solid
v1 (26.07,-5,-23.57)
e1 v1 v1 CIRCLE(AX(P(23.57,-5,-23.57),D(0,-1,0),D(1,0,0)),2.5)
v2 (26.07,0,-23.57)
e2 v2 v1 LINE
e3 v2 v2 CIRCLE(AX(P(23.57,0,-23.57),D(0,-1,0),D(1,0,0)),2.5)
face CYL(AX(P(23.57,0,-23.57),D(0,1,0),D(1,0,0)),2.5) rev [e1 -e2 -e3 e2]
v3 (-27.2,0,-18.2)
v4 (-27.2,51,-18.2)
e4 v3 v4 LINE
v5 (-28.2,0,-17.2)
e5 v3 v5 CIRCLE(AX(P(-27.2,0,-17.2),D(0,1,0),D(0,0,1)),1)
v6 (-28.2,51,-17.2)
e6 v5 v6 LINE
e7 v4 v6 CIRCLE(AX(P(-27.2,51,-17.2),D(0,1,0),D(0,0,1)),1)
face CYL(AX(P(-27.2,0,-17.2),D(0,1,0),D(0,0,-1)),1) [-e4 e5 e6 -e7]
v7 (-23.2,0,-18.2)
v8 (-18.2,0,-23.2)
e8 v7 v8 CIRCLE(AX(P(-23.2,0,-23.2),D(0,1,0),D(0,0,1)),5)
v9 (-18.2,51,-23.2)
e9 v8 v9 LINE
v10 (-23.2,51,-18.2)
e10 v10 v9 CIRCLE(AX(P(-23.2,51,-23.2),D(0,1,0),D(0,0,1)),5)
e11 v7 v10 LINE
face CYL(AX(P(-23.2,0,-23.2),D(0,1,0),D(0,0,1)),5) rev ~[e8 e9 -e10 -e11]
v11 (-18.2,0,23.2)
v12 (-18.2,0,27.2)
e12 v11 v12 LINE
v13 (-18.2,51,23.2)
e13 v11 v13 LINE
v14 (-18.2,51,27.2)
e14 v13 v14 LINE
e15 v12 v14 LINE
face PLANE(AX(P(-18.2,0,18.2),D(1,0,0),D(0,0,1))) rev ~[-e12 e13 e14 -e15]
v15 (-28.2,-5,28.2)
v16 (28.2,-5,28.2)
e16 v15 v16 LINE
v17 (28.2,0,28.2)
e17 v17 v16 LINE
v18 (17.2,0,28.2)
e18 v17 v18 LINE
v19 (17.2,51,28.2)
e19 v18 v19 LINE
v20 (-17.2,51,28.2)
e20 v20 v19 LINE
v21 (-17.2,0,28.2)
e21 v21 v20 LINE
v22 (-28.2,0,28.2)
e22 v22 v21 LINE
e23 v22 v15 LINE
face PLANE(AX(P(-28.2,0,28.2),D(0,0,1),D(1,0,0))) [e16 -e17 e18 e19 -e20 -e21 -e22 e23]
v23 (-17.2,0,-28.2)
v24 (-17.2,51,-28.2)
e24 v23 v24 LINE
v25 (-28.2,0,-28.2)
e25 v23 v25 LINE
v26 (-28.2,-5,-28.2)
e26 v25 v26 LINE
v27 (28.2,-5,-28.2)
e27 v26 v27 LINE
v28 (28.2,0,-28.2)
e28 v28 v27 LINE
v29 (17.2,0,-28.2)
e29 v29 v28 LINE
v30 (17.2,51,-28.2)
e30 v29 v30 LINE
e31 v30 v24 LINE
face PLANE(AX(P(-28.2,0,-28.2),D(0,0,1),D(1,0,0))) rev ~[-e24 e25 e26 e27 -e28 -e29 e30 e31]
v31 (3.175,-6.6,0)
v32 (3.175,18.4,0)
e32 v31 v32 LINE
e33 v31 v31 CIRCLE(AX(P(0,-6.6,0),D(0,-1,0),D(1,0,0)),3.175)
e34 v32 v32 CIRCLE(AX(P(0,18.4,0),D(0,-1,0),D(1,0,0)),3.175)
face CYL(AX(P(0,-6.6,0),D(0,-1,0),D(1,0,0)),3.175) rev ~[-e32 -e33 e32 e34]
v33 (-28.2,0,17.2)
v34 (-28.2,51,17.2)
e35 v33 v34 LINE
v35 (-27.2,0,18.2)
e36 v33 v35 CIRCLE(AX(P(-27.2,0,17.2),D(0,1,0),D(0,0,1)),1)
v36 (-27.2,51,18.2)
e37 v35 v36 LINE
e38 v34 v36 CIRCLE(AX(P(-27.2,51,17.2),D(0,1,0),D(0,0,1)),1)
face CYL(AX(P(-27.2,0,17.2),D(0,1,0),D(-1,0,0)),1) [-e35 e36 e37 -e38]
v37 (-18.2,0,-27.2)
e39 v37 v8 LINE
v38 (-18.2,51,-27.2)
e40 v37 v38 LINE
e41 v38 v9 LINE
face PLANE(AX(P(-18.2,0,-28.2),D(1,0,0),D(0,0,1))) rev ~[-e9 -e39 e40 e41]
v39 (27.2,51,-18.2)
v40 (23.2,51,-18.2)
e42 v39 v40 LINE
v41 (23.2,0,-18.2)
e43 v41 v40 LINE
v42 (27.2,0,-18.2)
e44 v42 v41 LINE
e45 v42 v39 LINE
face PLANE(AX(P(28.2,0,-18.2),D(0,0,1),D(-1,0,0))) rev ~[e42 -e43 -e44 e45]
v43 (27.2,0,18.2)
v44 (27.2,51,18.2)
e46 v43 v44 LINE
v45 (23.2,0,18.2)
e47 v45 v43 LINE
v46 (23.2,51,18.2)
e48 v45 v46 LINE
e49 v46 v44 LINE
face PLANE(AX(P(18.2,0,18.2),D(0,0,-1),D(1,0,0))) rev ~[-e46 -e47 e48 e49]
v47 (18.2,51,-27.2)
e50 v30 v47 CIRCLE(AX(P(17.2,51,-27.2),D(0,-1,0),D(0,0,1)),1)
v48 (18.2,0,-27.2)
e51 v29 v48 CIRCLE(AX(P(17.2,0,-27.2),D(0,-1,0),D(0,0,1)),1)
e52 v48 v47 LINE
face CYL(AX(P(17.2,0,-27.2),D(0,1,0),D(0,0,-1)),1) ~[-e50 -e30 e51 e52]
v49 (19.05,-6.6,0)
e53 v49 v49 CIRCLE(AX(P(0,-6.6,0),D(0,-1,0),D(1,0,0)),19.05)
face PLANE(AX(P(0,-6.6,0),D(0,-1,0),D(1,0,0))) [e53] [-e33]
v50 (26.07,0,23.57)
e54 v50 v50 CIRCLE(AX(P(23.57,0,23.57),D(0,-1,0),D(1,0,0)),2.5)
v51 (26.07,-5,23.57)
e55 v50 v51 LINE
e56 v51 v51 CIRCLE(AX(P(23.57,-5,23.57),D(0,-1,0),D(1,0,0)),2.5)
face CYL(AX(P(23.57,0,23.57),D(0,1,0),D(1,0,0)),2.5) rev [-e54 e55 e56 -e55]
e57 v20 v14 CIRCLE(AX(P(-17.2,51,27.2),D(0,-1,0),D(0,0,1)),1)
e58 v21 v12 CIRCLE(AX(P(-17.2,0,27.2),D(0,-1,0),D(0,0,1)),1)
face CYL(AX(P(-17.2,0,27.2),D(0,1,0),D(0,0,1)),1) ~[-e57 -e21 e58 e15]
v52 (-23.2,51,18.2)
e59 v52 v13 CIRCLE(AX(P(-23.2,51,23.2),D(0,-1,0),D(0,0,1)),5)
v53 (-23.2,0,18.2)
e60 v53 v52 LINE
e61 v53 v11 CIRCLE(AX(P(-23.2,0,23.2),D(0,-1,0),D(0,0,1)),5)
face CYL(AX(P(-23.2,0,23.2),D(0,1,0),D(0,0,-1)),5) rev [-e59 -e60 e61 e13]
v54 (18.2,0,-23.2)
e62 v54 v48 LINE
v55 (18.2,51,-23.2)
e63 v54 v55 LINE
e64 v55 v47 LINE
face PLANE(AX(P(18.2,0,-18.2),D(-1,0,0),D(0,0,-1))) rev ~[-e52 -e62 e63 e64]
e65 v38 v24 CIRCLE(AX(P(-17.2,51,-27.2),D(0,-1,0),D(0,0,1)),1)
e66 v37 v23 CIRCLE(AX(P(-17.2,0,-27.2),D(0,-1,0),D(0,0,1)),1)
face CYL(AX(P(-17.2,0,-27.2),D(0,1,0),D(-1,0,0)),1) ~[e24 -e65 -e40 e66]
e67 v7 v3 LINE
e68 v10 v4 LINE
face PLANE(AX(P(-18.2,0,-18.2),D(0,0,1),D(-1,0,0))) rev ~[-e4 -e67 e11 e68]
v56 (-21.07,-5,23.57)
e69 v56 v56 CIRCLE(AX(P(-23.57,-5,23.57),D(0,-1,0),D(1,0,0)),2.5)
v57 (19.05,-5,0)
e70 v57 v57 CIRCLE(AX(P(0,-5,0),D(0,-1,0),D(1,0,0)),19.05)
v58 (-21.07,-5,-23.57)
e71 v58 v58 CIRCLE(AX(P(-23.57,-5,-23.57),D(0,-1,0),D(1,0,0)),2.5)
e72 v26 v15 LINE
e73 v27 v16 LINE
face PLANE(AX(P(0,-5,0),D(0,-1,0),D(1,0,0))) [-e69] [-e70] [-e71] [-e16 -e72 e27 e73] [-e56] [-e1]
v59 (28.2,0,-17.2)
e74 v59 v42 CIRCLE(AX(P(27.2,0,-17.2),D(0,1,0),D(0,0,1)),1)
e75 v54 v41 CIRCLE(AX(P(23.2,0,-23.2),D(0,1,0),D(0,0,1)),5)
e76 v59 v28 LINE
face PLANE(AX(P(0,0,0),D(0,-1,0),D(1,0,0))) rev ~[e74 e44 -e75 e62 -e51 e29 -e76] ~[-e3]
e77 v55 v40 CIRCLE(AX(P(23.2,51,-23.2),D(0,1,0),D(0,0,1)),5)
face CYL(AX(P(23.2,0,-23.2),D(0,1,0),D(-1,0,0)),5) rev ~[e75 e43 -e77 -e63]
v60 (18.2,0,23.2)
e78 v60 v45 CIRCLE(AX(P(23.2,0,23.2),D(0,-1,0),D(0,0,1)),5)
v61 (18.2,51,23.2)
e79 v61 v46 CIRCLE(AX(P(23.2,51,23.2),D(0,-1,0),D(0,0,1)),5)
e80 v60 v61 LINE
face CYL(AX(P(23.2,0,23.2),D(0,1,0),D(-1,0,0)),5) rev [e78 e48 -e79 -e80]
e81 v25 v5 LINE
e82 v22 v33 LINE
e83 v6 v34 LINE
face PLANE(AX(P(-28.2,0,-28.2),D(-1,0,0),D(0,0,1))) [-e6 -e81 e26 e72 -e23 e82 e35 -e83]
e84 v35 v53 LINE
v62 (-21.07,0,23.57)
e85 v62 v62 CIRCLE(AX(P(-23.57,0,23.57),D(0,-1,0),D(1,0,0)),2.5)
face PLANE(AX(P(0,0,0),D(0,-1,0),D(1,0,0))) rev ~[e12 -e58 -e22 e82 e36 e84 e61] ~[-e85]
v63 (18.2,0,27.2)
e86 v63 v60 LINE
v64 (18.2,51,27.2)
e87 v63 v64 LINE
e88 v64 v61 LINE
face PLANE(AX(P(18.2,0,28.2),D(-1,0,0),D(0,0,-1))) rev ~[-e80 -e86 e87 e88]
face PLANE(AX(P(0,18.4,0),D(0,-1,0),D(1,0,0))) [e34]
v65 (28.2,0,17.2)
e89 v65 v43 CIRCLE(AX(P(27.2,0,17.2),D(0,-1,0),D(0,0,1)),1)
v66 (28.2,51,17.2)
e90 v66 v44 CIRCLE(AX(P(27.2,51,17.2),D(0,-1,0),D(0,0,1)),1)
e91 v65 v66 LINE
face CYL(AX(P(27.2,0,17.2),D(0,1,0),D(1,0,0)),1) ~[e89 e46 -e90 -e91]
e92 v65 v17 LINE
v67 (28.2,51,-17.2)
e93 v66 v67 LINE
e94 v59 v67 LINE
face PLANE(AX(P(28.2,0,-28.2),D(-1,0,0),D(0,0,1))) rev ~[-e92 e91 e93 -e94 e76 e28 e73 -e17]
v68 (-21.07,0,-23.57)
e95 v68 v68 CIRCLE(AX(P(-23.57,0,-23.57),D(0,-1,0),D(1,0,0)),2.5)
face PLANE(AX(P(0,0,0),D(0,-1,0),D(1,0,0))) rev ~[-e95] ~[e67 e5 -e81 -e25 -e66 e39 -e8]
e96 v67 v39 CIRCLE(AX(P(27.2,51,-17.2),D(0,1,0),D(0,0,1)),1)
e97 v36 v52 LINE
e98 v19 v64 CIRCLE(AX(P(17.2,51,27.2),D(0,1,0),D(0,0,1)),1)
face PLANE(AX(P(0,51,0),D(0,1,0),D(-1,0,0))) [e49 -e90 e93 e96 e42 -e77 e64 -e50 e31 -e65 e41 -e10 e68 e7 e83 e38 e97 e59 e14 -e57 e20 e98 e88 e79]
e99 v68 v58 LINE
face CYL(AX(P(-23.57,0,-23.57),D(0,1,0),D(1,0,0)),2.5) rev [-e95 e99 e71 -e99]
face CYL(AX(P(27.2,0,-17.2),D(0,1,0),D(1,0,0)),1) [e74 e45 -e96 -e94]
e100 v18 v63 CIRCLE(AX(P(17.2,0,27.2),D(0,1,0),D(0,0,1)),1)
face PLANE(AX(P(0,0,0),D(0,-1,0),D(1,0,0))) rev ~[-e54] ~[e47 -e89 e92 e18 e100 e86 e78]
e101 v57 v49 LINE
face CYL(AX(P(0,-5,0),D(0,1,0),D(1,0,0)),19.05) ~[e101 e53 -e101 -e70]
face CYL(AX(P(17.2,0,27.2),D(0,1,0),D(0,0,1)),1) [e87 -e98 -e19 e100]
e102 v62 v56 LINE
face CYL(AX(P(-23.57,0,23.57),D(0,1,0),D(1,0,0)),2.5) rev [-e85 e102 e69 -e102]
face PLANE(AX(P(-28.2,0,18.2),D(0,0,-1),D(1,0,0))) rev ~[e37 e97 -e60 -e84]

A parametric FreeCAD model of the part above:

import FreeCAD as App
import Part
import Sketcher
Q = App.Units.Quantity


def edges_at(feature, points):
    """Names of the edges that pass closest to the given points."""
    edges = feature.Shape.Edges
    near = lambda p: min(range(len(edges)), key=lambda i: edges[i].distToShape(Part.Vertex(*p))[0])
    return sorted({f"Edge{near(p) + 1}" for p in points})

doc = App.newDocument("Part")
body = doc.addObject("PartDesign::Body", "Body")

sketch1 = doc.addObject("Sketcher::SketchObject", "Sketch")
body.addObject(sketch1)
sketch1.AttachmentSupport = (doc.XZ_Plane, [""])
sketch1.MapMode = "FlatFace"
sketch1.addGeometry([
    Part.LineSegment(App.Vector(-28.2, 28.2, 0), App.Vector(-28.2, -28.2, 0)),
    Part.LineSegment(App.Vector(-28.2, -28.2, 0), App.Vector(28.2, -28.2, 0)),
    Part.LineSegment(App.Vector(28.2, -28.2, 0), App.Vector(28.2, 28.2, 0)),
    Part.LineSegment(App.Vector(28.2, 28.2, 0), App.Vector(-28.2, 28.2, 0)),
    Part.Circle(App.Vector(-23.57, -23.57, 0), App.Vector(0, 0, 1), 2.5),
    Part.Circle(App.Vector(23.57, -23.57, 0), App.Vector(0, 0, 1), 2.5),
    Part.Circle(App.Vector(-23.57, 23.57, 0), App.Vector(0, 0, 1), 2.5),
    Part.Circle(App.Vector(23.57, 23.57, 0), App.Vector(0, 0, 1), 2.5),
], False)
sketch1.addConstraint([
    Sketcher.Constraint("Coincident", 0, 2, 1, 1),
    Sketcher.Constraint("Coincident", 1, 2, 2, 1),
    Sketcher.Constraint("Coincident", 2, 2, 3, 1),
    Sketcher.Constraint("Coincident", 3, 2, 0, 1),
    Sketcher.Constraint("Vertical", 0),
    Sketcher.Constraint("Horizontal", 1),
    Sketcher.Constraint("Vertical", 2),
    Sketcher.Constraint("Horizontal", 3),
    Sketcher.Constraint("Equal", 4, 5),
    Sketcher.Constraint("Equal", 5, 6),
    Sketcher.Constraint("Equal", 6, 7),
    Sketcher.Constraint("Symmetric", 5, 3, 6, 3, -1, 1),
    Sketcher.Constraint("Symmetric", 4, 3, 7, 3, -1, 1),
    Sketcher.Constraint("Symmetric", 0, 2, 2, 2, -1, 1),
    Sketcher.Constraint("Symmetric", 4, 3, 5, 3, -2),
    Sketcher.Constraint("Equal", 3, 0),
    Sketcher.Constraint("Diameter", 4, Q("5 mm")),
    Sketcher.Constraint("DistanceX", 1, 1, 1, 2, Q("56.4 mm")),
    Sketcher.Constraint("DistanceX", 4, 3, -1, 1, Q("23.57 mm")),
    Sketcher.Constraint("DistanceY", 4, 3, -1, 1, Q("23.57 mm")),
])
pad1 = doc.addObject("PartDesign::Pad", "Pad")
body.addObject(pad1)
pad1.Profile = sketch1
pad1.Length = 5

sketch2 = doc.addObject("Sketcher::SketchObject", "Sketch001")
body.addObject(sketch2)
sketch2.AttachmentSupport = (doc.XZ_Plane, [""])
sketch2.MapMode = "FlatFace"
sketch2.addGeometry([
    Part.LineSegment(App.Vector(-18.2, 18.2, 0), App.Vector(-18.2, 28.2, 0)),
    Part.LineSegment(App.Vector(-18.2, 28.2, 0), App.Vector(18.2, 28.2, 0)),
    Part.LineSegment(App.Vector(18.2, 28.2, 0), App.Vector(18.2, 18.2, 0)),
    Part.LineSegment(App.Vector(18.2, 18.2, 0), App.Vector(28.2, 18.2, 0)),
    Part.LineSegment(App.Vector(28.2, 18.2, 0), App.Vector(28.2, -18.2, 0)),
    Part.LineSegment(App.Vector(28.2, -18.2, 0), App.Vector(18.2, -18.2, 0)),
    Part.LineSegment(App.Vector(18.2, -18.2, 0), App.Vector(18.2, -28.2, 0)),
    Part.LineSegment(App.Vector(18.2, -28.2, 0), App.Vector(-18.2, -28.2, 0)),
    Part.LineSegment(App.Vector(-18.2, -28.2, 0), App.Vector(-18.2, -18.2, 0)),
    Part.LineSegment(App.Vector(-18.2, -18.2, 0), App.Vector(-28.2, -18.2, 0)),
    Part.LineSegment(App.Vector(-28.2, -18.2, 0), App.Vector(-28.2, 18.2, 0)),
    Part.LineSegment(App.Vector(-28.2, 18.2, 0), App.Vector(-18.2, 18.2, 0)),
], False)
sketch2.addConstraint([
    Sketcher.Constraint("Coincident", 0, 2, 1, 1),
    Sketcher.Constraint("Coincident", 1, 2, 2, 1),
    Sketcher.Constraint("Coincident", 2, 2, 3, 1),
    Sketcher.Constraint("Coincident", 3, 2, 4, 1),
    Sketcher.Constraint("Coincident", 4, 2, 5, 1),
    Sketcher.Constraint("Coincident", 5, 2, 6, 1),
    Sketcher.Constraint("Coincident", 6, 2, 7, 1),
    Sketcher.Constraint("Coincident", 7, 2, 8, 1),
    Sketcher.Constraint("Coincident", 8, 2, 9, 1),
    Sketcher.Constraint("Coincident", 9, 2, 10, 1),
    Sketcher.Constraint("Coincident", 10, 2, 11, 1),
    Sketcher.Constraint("Coincident", 11, 2, 0, 1),
    Sketcher.Constraint("Vertical", 0),
    Sketcher.Constraint("Horizontal", 1),
    Sketcher.Constraint("Vertical", 2),
    Sketcher.Constraint("Horizontal", 3),
    Sketcher.Constraint("Vertical", 4),
    Sketcher.Constraint("Horizontal", 5),
    Sketcher.Constraint("Vertical", 6),
    Sketcher.Constraint("Horizontal", 7),
    Sketcher.Constraint("Vertical", 8),
    Sketcher.Constraint("Horizontal", 9),
    Sketcher.Constraint("Vertical", 10),
    Sketcher.Constraint("Horizontal", 11),
    Sketcher.Constraint("Symmetric", 0, 2, 6, 2, -1, 1),
    Sketcher.Constraint("Symmetric", 2, 2, 8, 2, -1, 1),
    Sketcher.Constraint("Symmetric", 4, 2, 10, 2, -1, 1),
    Sketcher.Constraint("Symmetric", 5, 2, 8, 2, -2),
    Sketcher.Constraint("Equal", 11, 0),
    Sketcher.Constraint("Equal", 7, 4),
    Sketcher.Constraint("DistanceX", 3, 1, 3, 2, Q("10 mm")),
    Sketcher.Constraint("DistanceX", 1, 1, 1, 2, Q("36.4 mm")),
])
pad2 = doc.addObject("PartDesign::Pad", "Pad001")
body.addObject(pad2)
pad2.Profile = sketch2
pad2.Length = 51
pad2.Reversed = True
doc.recompute()

fillet = doc.addObject("PartDesign::Fillet", "Fillet")
body.addObject(fillet)
fillet.Base = (pad2, edges_at(pad2, [
    (18.2, 25.5, 18.2),
    (18.2, 25.5, -18.2),
    (-18.2, 25.5, -18.2),
    (-18.2, 25.5, 18.2),
]))
fillet.Radius = 5
doc.recompute()

fillet2 = doc.addObject("PartDesign::Fillet", "Fillet001")
body.addObject(fillet2)
fillet2.Base = (fillet, edges_at(fillet, [
    (28.2, 25.5, 18.2),
    (18.2, 25.5, 28.2),
    (-18.2, 25.5, 28.2),
    (28.2, 25.5, -18.2),
    (18.2, 25.5, -28.2),
    (-18.2, 25.5, -28.2),
    (-28.2, 25.5, -18.2),
    (-28.2, 25.5, 18.2),
]))
fillet2.Radius = 1

sketch3 = doc.addObject("Sketcher::SketchObject", "Sketch002")
body.addObject(sketch3)
sketch3.AttachmentSupport = (doc.XZ_Plane, [""])
sketch3.MapMode = "FlatFace"
sketch3.AttachmentOffset = App.Placement(App.Vector(0, 0, 5), App.Rotation())
sketch3.addGeometry(Part.Circle(App.Vector(0, 0, 0), App.Vector(0, 0, 1), 19.05), False)
sketch3.addConstraint([
    Sketcher.Constraint("Coincident", 0, 3, -1, 1),
    Sketcher.Constraint("Diameter", 0, Q("38.1 mm")),
])
pad3 = doc.addObject("PartDesign::Pad", "Pad002")
body.addObject(pad3)
pad3.Profile = sketch3
pad3.Length = 1.6

sketch4 = doc.addObject("Sketcher::SketchObject", "Sketch003")
body.addObject(sketch4)
sketch4.AttachmentSupport = (doc.XZ_Plane, [""])
sketch4.MapMode = "FlatFace"
sketch4.AttachmentOffset = App.Placement(App.Vector(0, 0, 6.6), App.Rotation())
sketch4.addGeometry(Part.Circle(App.Vector(0, 0, 0), App.Vector(0, 0, 1), 3.175), False)
sketch4.addConstraint([
    Sketcher.Constraint("Coincident", 0, 3, -1, 1),
    Sketcher.Constraint("Diameter", 0, Q("6.35 mm")),
])
pocket1 = doc.addObject("PartDesign::Pocket", "Pocket")
body.addObject(pocket1)
pocket1.Profile = sketch4
pocket1.Length = 25

doc.recompute()
